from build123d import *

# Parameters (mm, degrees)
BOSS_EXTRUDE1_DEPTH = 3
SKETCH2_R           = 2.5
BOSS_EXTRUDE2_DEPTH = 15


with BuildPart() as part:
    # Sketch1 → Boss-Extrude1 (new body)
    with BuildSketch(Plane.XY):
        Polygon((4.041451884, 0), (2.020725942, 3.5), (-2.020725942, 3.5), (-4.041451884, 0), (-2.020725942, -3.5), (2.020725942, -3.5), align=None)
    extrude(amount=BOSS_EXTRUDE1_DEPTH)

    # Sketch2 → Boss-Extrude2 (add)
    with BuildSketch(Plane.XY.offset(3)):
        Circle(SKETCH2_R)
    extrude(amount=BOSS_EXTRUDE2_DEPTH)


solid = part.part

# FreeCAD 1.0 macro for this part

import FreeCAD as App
import Part
import Sketcher
from FreeCAD import Vector
Q = App.Units.Quantity

doc = App.newDocument("Part")
body = doc.addObject("PartDesign::Body", "Body")

# Sketch on XY plane
sketch1 = doc.addObject("Sketcher::SketchObject", "Sketch")
body.addObject(sketch1)
sketch1.AttachmentSupport = (doc.XY_Plane, [""])
sketch1.MapMode = "FlatFace"
sketch1.addGeometry(Part.LineSegment(Vector(4, 0, 0), Vector(2, 3.5, 0)), False)
sketch1.addGeometry(Part.LineSegment(Vector(2, 3.5, 0), Vector(-2, 3.5, 0)), False)
sketch1.addGeometry(Part.LineSegment(Vector(-2, 3.5, 0), Vector(-4, 0, 0)), False)
sketch1.addGeometry(Part.LineSegment(Vector(-4, 0, 0), Vector(-2, -3.5, 0)), False)
sketch1.addGeometry(Part.LineSegment(Vector(-2, -3.5, 0), Vector(2, -3.5, 0)), False)
sketch1.addGeometry(Part.LineSegment(Vector(2, -3.5, 0), Vector(4, 0, 0)), False)
sketch1.addConstraint(Sketcher.Constraint("Coincident", 0, 2, 1, 1))
sketch1.addConstraint(Sketcher.Constraint("Coincident", 1, 2, 2, 1))
sketch1.addConstraint(Sketcher.Constraint("Coincident", 2, 2, 3, 1))
sketch1.addConstraint(Sketcher.Constraint("Coincident", 3, 2, 4, 1))
sketch1.addConstraint(Sketcher.Constraint("Coincident", 4, 2, 5, 1))
sketch1.addConstraint(Sketcher.Constraint("Coincident", 5, 2, 0, 1))
sketch1.addConstraint(Sketcher.Constraint("Horizontal", 1))
sketch1.addConstraint(Sketcher.Constraint("Horizontal", 4))
sketch1.addConstraint(Sketcher.Constraint("Symmetric", 0, 2, 3, 2, -1, 1))
sketch1.addConstraint(Sketcher.Constraint("Symmetric", 2, 2, 5, 2, -1, 1))
sketch1.addConstraint(Sketcher.Constraint("PointOnObject", 2, 2, -1))
sketch1.addConstraint(Sketcher.Constraint("Parallel", 2, 5))
sketch1.addConstraint(Sketcher.Constraint("Vertical", 1, 2, 3, 2))
sketch1.addConstraint(Sketcher.Constraint("Angle", 0, Q("120 deg")))
sketch1.addConstraint(Sketcher.Constraint("DistanceY", 3, 2, 1, 2, 7.0))
sketch1.addConstraint(Sketcher.Constraint("DistanceX", 1, 2, 1, 1, 4.041452))
pad1 = doc.addObject("PartDesign::Pad", "Pad")
body.addObject(pad1)
pad1.Profile = sketch1
pad1.Length = 3

# Sketch on XY plane
sketch2 = doc.addObject("Sketcher::SketchObject", "Sketch001")
body.addObject(sketch2)
sketch2.AttachmentSupport = (doc.XY_Plane, [""])
sketch2.MapMode = "FlatFace"
sketch2.AttachmentOffset = App.Placement(Vector(0, 0, 3), App.Rotation())
sketch2.addGeometry(Part.Circle(Vector(0, 0, 0), Vector(0, 0, 1), 2.5), False)
sketch2.addConstraint(Sketcher.Constraint("Coincident", 0, 3, -1, 1))
sketch2.addConstraint(Sketcher.Constraint("Diameter", 0, 5.0))
pad2 = doc.addObject("PartDesign::Pad", "Pad001")
body.addObject(pad2)
pad2.Profile = sketch2
pad2.Length = 15

doc.recompute()
